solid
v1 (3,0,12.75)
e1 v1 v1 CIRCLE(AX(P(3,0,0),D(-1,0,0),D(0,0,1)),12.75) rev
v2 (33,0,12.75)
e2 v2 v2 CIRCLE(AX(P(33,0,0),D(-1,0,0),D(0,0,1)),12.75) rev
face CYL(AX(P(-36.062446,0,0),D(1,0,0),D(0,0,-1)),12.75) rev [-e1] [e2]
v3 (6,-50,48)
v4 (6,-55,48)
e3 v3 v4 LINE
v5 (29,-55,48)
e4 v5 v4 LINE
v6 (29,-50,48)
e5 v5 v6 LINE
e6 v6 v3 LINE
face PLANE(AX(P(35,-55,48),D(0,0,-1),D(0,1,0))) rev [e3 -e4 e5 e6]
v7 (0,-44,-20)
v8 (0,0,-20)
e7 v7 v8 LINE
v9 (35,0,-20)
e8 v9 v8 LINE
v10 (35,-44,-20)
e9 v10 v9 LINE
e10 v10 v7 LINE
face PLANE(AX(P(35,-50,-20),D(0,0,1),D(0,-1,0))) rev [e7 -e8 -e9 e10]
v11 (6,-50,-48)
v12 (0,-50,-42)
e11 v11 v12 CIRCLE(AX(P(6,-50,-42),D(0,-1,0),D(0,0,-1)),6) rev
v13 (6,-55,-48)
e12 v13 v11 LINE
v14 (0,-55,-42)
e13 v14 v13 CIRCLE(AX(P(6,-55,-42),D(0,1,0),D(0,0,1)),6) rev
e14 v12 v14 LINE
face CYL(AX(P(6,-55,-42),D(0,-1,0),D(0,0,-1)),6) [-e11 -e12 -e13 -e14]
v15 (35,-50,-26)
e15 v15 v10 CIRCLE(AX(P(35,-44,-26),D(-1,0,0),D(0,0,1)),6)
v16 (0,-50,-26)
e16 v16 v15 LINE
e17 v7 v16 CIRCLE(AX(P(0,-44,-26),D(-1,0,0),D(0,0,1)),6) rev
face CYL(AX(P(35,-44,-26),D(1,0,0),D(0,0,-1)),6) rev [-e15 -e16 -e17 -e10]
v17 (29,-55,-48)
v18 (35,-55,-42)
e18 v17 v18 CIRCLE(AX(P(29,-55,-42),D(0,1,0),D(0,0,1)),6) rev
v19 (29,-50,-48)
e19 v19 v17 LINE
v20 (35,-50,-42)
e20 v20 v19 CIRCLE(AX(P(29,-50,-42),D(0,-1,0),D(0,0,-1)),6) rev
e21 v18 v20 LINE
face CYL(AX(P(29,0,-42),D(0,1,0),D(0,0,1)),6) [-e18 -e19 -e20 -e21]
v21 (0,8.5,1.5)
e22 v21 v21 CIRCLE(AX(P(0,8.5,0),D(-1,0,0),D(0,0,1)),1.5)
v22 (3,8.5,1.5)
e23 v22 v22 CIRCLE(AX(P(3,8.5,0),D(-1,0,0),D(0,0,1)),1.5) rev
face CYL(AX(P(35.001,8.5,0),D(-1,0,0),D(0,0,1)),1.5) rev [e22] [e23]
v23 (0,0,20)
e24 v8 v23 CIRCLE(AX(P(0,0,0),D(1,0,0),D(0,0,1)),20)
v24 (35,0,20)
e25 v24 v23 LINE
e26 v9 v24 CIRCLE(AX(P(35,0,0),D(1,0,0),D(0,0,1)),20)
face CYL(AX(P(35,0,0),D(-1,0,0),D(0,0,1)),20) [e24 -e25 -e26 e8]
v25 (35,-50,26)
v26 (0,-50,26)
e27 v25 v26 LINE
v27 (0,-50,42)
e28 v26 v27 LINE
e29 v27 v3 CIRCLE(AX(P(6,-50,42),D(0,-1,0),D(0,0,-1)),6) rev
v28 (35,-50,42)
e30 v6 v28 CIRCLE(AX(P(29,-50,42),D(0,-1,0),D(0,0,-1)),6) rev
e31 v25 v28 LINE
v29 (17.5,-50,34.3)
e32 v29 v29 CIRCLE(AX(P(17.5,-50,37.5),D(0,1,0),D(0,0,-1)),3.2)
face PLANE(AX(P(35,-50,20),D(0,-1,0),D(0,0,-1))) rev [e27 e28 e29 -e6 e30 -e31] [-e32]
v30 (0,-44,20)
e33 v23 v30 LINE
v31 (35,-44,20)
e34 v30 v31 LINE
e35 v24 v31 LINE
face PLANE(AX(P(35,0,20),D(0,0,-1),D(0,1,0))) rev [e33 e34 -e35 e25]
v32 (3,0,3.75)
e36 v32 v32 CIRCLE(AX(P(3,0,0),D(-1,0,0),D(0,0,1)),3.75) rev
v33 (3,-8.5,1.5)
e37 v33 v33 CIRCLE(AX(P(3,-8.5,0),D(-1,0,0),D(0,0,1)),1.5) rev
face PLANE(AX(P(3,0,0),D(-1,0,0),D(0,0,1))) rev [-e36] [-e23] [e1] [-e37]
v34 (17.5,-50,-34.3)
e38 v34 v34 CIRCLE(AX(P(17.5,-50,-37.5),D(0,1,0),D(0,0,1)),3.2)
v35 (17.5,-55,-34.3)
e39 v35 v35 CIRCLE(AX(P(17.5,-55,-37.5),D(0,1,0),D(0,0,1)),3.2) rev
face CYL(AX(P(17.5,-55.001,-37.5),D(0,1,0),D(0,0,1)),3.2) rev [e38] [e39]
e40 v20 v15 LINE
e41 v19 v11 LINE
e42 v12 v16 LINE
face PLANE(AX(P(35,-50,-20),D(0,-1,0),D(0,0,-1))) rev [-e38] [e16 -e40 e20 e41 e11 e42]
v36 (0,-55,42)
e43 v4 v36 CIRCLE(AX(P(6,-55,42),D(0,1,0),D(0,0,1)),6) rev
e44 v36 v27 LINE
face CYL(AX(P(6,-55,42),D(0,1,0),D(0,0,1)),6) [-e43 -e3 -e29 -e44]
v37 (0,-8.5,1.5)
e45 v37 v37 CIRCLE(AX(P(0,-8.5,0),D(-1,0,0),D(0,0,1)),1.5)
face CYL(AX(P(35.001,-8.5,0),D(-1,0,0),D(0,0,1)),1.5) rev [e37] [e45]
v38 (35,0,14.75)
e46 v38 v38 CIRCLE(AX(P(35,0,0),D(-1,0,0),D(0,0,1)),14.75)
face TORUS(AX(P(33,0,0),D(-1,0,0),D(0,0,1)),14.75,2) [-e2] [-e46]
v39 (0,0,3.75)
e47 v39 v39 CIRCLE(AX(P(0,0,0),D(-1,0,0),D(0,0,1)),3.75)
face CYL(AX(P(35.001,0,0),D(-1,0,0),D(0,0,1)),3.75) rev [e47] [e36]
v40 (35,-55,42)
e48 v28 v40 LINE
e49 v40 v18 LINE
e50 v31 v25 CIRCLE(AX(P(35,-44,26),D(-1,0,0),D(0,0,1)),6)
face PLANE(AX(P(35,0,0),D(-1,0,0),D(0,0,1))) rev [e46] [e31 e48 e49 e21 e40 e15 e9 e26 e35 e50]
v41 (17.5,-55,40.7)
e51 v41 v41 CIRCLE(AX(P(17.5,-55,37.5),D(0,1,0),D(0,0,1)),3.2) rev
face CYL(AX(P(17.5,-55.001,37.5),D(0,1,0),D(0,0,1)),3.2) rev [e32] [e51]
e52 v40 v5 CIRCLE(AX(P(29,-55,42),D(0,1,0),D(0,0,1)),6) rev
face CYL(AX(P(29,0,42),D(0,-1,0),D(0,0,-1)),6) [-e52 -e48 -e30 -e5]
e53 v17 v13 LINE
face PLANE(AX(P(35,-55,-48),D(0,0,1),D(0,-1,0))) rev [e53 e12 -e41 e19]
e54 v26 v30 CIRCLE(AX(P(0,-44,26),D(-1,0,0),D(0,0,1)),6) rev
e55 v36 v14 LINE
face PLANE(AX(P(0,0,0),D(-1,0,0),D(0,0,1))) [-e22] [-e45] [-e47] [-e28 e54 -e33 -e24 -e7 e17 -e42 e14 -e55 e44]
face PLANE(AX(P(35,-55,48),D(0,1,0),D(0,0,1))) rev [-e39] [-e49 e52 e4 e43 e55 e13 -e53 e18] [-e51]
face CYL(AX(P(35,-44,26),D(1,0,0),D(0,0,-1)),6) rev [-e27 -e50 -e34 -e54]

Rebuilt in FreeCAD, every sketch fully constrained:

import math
import FreeCAD as App
import Part
import Sketcher
from FreeCAD import Vector
Q = App.Units.Quantity


def edges_at(feature, points):
    """Names of the edges that pass closest to the given points."""
    edges = feature.Shape.Edges
    near = lambda p: min(range(len(edges)), key=lambda i: edges[i].distToShape(Part.Vertex(*p))[0])
    return sorted({f"Edge{near(p) + 1}" for p in points})

doc = App.newDocument("Part")
body = doc.addObject("PartDesign::Body", "Body")

sketch1 = body.newObject("Sketcher::SketchObject", "Sketch")
sketch1.AttachmentSupport = (doc.getObject("YZ_Plane"), [""])
sketch1.MapMode = "FlatFace"
sketch1.addGeometry([
    Part.LineSegment(Vector(-50, 48, 0), Vector(-55, 48, 0)),
    Part.LineSegment(Vector(-55, 48, 0), Vector(-55, -48, 0)),
    Part.LineSegment(Vector(-55, -48, 0), Vector(-50, -48, 0)),
    Part.LineSegment(Vector(-50, -48, 0), Vector(-50, -20, 0)),
    Part.LineSegment(Vector(-50, -20, 0), Vector(0, -20, 0)),
    Part.ArcOfCircle(Part.Circle(Vector(0, 0, 0), Vector(0, 0, 1), 20), math.radians(-90), math.radians(90)),
    Part.LineSegment(Vector(0, 20, 0), Vector(-50, 20, 0)),
    Part.LineSegment(Vector(-50, 20, 0), Vector(-50, 48, 0)),
], False)
sketch1.addConstraint([
    Sketcher.Constraint("Coincident", 0, 2, 1, 1),
    Sketcher.Constraint("Coincident", 1, 2, 2, 1),
    Sketcher.Constraint("Coincident", 2, 2, 3, 1),
    Sketcher.Constraint("Coincident", 3, 2, 4, 1),
    Sketcher.Constraint("Tangent", 4, 2, 5, 1),
    Sketcher.Constraint("Tangent", 5, 2, 6, 1),
    Sketcher.Constraint("Coincident", 6, 2, 7, 1),
    Sketcher.Constraint("Coincident", 7, 2, 0, 1),
    Sketcher.Constraint("Horizontal", 0),
    Sketcher.Constraint("Vertical", 1),
    Sketcher.Constraint("Horizontal", 2),
    Sketcher.Constraint("Vertical", 3),
    Sketcher.Constraint("Horizontal", 4),
    Sketcher.Constraint("Horizontal", 6),
    Sketcher.Constraint("Vertical", 7),
    Sketcher.Constraint("Coincident", 5, 3, -1, 1),
    Sketcher.Constraint("Symmetric", 2, 2, 7, 2, -1),
    Sketcher.Constraint("Radius", 5, Q("20 mm")),
    Sketcher.Constraint("DistanceX", 0, 2, 0, 1, Q("5 mm")),
    Sketcher.Constraint("DistanceX", 4, 1, 4, 2, Q("50 mm")),
    Sketcher.Constraint("DistanceY", 1, 2, 1, 1, Q("96 mm")),
])
pad1 = body.newObject("PartDesign::Pad", "Pad")
pad1.Profile = sketch1
pad1.Length = 35

sketch2 = body.newObject("Sketcher::SketchObject", "Sketch001")
sketch2.AttachmentSupport = (doc.getObject("YZ_Plane"), [""])
sketch2.MapMode = "FlatFace"
sketch2.AttachmentOffset = App.Placement(Vector(0, 0, 35), App.Rotation())
sketch2.addGeometry(Part.Circle(Vector(0, 0, 0), Vector(0, 0, 1), 12.75), False)
sketch2.addConstraint([
    Sketcher.Constraint("Coincident", 0, 3, -1, 1),
    Sketcher.Constraint("Diameter", 0, Q("25.5 mm")),
])
pocket1 = body.newObject("PartDesign::Pocket", "Pocket")
pocket1.Profile = sketch2
pocket1.Length = 32

sketch3 = body.newObject("Sketcher::SketchObject", "Sketch002")
sketch3.AttachmentSupport = (doc.getObject("YZ_Plane"), [""])
sketch3.MapMode = "FlatFace"
sketch3.addGeometry(Part.Circle(Vector(8.5, 0, 0), Vector(0, 0, 1), 1.5), False)
sketch3.addConstraint([
    Sketcher.Constraint("PointOnObject", 0, 3, -1),
    Sketcher.Constraint("Diameter", 0, Q("3 mm")),
    Sketcher.Constraint("DistanceX", -1, 1, 0, 3, Q("8.5 mm")),
])
pocket2 = body.newObject("PartDesign::Pocket", "Pocket001")
pocket2.Profile = sketch3
pocket2.Type = "UpToFirst"
pocket2.Reversed = True

sketch4 = body.newObject("Sketcher::SketchObject", "Sketch003")
sketch4.AttachmentSupport = (doc.getObject("YZ_Plane"), [""])
sketch4.MapMode = "FlatFace"
sketch4.addGeometry(Part.Circle(Vector(-8.5, 0, 0), Vector(0, 0, 1), 1.5), False)
sketch4.addConstraint([
    Sketcher.Constraint("PointOnObject", 0, 3, -1),
    Sketcher.Constraint("Diameter", 0, Q("3 mm")),
    Sketcher.Constraint("DistanceX", 0, 3, -1, 1, Q("8.5 mm")),
])
pocket3 = body.newObject("PartDesign::Pocket", "Pocket002")
pocket3.Profile = sketch4
pocket3.Type = "UpToFirst"
pocket3.Reversed = True

sketch5 = body.newObject("Sketcher::SketchObject", "Sketch004")
sketch5.AttachmentSupport = (doc.getObject("YZ_Plane"), [""])
sketch5.MapMode = "FlatFace"
sketch5.addGeometry(Part.Circle(Vector(0, 0, 0), Vector(0, 0, 1), 3.75), False)
sketch5.addConstraint([
    Sketcher.Constraint("Coincident", 0, 3, -1, 1),
    Sketcher.Constraint("Diameter", 0, Q("7.5 mm")),
])
pocket4 = body.newObject("PartDesign::Pocket", "Pocket003")
pocket4.Profile = sketch5
pocket4.Type = "UpToFirst"
pocket4.Reversed = True

sketch6 = body.newObject("Sketcher::SketchObject", "Sketch005")
sketch6.AttachmentSupport = (doc.getObject("XZ_Plane"), [""])
sketch6.MapMode = "FlatFace"
sketch6.AttachmentOffset = App.Placement(Vector(0, 0, 50), App.Rotation())
sketch6.addGeometry(Part.Circle(Vector(17.5, -37.5, 0), Vector(0, 0, 1), 3.2), False)
sketch6.addConstraint([
    Sketcher.Constraint("Diameter", 0, Q("6.4 mm")),
    Sketcher.Constraint("DistanceX", -1, 1, 0, 3, Q("17.5 mm")),
    Sketcher.Constraint("DistanceY", 0, 3, -1, 1, Q("37.5 mm")),
])
pocket5 = body.newObject("PartDesign::Pocket", "Pocket004")
pocket5.Profile = sketch6
pocket5.Type = "UpToFirst"
pocket5.Reversed = True

sketch7 = body.newObject("Sketcher::SketchObject", "Sketch006")
sketch7.AttachmentSupport = (doc.getObject("XZ_Plane"), [""])
sketch7.MapMode = "FlatFace"
sketch7.AttachmentOffset = App.Placement(Vector(0, 0, 50), App.Rotation())
sketch7.addGeometry(Part.Circle(Vector(17.5, 37.5, 0), Vector(0, 0, 1), 3.2), False)
sketch7.addConstraint([
    Sketcher.Constraint("Diameter", 0, Q("6.4 mm")),
    Sketcher.Constraint("DistanceX", -1, 1, 0, 3, Q("17.5 mm")),
    Sketcher.Constraint("DistanceY", -1, 1, 0, 3, Q("37.5 mm")),
])
pocket6 = body.newObject("PartDesign::Pocket", "Pocket005")
pocket6.Profile = sketch7
pocket6.Type = "UpToFirst"
pocket6.Reversed = True
doc.recompute()

fillet = body.newObject("PartDesign::Fillet", "Fillet")
fillet.Base = (pocket6, edges_at(pocket6, [(35, 0, 12.75)]))
fillet.Radius = 2
doc.recompute()

fillet2 = body.newObject("PartDesign::Fillet", "Fillet001")
fillet2.Base = (fillet, edges_at(fillet, [(17.5, -50, 20), (17.5, -50, -20)]))
fillet2.Radius = 6
doc.recompute()

fillet3 = body.newObject("PartDesign::Fillet", "Fillet002")
fillet3.Base = (fillet2, edges_at(fillet2, [
    (0, -52.5, -48),
    (35, -52.5, 48),
    (0, -52.5, 48),
    (35, -52.5, -48),
]))
fillet3.Radius = 6

doc.recompute()
